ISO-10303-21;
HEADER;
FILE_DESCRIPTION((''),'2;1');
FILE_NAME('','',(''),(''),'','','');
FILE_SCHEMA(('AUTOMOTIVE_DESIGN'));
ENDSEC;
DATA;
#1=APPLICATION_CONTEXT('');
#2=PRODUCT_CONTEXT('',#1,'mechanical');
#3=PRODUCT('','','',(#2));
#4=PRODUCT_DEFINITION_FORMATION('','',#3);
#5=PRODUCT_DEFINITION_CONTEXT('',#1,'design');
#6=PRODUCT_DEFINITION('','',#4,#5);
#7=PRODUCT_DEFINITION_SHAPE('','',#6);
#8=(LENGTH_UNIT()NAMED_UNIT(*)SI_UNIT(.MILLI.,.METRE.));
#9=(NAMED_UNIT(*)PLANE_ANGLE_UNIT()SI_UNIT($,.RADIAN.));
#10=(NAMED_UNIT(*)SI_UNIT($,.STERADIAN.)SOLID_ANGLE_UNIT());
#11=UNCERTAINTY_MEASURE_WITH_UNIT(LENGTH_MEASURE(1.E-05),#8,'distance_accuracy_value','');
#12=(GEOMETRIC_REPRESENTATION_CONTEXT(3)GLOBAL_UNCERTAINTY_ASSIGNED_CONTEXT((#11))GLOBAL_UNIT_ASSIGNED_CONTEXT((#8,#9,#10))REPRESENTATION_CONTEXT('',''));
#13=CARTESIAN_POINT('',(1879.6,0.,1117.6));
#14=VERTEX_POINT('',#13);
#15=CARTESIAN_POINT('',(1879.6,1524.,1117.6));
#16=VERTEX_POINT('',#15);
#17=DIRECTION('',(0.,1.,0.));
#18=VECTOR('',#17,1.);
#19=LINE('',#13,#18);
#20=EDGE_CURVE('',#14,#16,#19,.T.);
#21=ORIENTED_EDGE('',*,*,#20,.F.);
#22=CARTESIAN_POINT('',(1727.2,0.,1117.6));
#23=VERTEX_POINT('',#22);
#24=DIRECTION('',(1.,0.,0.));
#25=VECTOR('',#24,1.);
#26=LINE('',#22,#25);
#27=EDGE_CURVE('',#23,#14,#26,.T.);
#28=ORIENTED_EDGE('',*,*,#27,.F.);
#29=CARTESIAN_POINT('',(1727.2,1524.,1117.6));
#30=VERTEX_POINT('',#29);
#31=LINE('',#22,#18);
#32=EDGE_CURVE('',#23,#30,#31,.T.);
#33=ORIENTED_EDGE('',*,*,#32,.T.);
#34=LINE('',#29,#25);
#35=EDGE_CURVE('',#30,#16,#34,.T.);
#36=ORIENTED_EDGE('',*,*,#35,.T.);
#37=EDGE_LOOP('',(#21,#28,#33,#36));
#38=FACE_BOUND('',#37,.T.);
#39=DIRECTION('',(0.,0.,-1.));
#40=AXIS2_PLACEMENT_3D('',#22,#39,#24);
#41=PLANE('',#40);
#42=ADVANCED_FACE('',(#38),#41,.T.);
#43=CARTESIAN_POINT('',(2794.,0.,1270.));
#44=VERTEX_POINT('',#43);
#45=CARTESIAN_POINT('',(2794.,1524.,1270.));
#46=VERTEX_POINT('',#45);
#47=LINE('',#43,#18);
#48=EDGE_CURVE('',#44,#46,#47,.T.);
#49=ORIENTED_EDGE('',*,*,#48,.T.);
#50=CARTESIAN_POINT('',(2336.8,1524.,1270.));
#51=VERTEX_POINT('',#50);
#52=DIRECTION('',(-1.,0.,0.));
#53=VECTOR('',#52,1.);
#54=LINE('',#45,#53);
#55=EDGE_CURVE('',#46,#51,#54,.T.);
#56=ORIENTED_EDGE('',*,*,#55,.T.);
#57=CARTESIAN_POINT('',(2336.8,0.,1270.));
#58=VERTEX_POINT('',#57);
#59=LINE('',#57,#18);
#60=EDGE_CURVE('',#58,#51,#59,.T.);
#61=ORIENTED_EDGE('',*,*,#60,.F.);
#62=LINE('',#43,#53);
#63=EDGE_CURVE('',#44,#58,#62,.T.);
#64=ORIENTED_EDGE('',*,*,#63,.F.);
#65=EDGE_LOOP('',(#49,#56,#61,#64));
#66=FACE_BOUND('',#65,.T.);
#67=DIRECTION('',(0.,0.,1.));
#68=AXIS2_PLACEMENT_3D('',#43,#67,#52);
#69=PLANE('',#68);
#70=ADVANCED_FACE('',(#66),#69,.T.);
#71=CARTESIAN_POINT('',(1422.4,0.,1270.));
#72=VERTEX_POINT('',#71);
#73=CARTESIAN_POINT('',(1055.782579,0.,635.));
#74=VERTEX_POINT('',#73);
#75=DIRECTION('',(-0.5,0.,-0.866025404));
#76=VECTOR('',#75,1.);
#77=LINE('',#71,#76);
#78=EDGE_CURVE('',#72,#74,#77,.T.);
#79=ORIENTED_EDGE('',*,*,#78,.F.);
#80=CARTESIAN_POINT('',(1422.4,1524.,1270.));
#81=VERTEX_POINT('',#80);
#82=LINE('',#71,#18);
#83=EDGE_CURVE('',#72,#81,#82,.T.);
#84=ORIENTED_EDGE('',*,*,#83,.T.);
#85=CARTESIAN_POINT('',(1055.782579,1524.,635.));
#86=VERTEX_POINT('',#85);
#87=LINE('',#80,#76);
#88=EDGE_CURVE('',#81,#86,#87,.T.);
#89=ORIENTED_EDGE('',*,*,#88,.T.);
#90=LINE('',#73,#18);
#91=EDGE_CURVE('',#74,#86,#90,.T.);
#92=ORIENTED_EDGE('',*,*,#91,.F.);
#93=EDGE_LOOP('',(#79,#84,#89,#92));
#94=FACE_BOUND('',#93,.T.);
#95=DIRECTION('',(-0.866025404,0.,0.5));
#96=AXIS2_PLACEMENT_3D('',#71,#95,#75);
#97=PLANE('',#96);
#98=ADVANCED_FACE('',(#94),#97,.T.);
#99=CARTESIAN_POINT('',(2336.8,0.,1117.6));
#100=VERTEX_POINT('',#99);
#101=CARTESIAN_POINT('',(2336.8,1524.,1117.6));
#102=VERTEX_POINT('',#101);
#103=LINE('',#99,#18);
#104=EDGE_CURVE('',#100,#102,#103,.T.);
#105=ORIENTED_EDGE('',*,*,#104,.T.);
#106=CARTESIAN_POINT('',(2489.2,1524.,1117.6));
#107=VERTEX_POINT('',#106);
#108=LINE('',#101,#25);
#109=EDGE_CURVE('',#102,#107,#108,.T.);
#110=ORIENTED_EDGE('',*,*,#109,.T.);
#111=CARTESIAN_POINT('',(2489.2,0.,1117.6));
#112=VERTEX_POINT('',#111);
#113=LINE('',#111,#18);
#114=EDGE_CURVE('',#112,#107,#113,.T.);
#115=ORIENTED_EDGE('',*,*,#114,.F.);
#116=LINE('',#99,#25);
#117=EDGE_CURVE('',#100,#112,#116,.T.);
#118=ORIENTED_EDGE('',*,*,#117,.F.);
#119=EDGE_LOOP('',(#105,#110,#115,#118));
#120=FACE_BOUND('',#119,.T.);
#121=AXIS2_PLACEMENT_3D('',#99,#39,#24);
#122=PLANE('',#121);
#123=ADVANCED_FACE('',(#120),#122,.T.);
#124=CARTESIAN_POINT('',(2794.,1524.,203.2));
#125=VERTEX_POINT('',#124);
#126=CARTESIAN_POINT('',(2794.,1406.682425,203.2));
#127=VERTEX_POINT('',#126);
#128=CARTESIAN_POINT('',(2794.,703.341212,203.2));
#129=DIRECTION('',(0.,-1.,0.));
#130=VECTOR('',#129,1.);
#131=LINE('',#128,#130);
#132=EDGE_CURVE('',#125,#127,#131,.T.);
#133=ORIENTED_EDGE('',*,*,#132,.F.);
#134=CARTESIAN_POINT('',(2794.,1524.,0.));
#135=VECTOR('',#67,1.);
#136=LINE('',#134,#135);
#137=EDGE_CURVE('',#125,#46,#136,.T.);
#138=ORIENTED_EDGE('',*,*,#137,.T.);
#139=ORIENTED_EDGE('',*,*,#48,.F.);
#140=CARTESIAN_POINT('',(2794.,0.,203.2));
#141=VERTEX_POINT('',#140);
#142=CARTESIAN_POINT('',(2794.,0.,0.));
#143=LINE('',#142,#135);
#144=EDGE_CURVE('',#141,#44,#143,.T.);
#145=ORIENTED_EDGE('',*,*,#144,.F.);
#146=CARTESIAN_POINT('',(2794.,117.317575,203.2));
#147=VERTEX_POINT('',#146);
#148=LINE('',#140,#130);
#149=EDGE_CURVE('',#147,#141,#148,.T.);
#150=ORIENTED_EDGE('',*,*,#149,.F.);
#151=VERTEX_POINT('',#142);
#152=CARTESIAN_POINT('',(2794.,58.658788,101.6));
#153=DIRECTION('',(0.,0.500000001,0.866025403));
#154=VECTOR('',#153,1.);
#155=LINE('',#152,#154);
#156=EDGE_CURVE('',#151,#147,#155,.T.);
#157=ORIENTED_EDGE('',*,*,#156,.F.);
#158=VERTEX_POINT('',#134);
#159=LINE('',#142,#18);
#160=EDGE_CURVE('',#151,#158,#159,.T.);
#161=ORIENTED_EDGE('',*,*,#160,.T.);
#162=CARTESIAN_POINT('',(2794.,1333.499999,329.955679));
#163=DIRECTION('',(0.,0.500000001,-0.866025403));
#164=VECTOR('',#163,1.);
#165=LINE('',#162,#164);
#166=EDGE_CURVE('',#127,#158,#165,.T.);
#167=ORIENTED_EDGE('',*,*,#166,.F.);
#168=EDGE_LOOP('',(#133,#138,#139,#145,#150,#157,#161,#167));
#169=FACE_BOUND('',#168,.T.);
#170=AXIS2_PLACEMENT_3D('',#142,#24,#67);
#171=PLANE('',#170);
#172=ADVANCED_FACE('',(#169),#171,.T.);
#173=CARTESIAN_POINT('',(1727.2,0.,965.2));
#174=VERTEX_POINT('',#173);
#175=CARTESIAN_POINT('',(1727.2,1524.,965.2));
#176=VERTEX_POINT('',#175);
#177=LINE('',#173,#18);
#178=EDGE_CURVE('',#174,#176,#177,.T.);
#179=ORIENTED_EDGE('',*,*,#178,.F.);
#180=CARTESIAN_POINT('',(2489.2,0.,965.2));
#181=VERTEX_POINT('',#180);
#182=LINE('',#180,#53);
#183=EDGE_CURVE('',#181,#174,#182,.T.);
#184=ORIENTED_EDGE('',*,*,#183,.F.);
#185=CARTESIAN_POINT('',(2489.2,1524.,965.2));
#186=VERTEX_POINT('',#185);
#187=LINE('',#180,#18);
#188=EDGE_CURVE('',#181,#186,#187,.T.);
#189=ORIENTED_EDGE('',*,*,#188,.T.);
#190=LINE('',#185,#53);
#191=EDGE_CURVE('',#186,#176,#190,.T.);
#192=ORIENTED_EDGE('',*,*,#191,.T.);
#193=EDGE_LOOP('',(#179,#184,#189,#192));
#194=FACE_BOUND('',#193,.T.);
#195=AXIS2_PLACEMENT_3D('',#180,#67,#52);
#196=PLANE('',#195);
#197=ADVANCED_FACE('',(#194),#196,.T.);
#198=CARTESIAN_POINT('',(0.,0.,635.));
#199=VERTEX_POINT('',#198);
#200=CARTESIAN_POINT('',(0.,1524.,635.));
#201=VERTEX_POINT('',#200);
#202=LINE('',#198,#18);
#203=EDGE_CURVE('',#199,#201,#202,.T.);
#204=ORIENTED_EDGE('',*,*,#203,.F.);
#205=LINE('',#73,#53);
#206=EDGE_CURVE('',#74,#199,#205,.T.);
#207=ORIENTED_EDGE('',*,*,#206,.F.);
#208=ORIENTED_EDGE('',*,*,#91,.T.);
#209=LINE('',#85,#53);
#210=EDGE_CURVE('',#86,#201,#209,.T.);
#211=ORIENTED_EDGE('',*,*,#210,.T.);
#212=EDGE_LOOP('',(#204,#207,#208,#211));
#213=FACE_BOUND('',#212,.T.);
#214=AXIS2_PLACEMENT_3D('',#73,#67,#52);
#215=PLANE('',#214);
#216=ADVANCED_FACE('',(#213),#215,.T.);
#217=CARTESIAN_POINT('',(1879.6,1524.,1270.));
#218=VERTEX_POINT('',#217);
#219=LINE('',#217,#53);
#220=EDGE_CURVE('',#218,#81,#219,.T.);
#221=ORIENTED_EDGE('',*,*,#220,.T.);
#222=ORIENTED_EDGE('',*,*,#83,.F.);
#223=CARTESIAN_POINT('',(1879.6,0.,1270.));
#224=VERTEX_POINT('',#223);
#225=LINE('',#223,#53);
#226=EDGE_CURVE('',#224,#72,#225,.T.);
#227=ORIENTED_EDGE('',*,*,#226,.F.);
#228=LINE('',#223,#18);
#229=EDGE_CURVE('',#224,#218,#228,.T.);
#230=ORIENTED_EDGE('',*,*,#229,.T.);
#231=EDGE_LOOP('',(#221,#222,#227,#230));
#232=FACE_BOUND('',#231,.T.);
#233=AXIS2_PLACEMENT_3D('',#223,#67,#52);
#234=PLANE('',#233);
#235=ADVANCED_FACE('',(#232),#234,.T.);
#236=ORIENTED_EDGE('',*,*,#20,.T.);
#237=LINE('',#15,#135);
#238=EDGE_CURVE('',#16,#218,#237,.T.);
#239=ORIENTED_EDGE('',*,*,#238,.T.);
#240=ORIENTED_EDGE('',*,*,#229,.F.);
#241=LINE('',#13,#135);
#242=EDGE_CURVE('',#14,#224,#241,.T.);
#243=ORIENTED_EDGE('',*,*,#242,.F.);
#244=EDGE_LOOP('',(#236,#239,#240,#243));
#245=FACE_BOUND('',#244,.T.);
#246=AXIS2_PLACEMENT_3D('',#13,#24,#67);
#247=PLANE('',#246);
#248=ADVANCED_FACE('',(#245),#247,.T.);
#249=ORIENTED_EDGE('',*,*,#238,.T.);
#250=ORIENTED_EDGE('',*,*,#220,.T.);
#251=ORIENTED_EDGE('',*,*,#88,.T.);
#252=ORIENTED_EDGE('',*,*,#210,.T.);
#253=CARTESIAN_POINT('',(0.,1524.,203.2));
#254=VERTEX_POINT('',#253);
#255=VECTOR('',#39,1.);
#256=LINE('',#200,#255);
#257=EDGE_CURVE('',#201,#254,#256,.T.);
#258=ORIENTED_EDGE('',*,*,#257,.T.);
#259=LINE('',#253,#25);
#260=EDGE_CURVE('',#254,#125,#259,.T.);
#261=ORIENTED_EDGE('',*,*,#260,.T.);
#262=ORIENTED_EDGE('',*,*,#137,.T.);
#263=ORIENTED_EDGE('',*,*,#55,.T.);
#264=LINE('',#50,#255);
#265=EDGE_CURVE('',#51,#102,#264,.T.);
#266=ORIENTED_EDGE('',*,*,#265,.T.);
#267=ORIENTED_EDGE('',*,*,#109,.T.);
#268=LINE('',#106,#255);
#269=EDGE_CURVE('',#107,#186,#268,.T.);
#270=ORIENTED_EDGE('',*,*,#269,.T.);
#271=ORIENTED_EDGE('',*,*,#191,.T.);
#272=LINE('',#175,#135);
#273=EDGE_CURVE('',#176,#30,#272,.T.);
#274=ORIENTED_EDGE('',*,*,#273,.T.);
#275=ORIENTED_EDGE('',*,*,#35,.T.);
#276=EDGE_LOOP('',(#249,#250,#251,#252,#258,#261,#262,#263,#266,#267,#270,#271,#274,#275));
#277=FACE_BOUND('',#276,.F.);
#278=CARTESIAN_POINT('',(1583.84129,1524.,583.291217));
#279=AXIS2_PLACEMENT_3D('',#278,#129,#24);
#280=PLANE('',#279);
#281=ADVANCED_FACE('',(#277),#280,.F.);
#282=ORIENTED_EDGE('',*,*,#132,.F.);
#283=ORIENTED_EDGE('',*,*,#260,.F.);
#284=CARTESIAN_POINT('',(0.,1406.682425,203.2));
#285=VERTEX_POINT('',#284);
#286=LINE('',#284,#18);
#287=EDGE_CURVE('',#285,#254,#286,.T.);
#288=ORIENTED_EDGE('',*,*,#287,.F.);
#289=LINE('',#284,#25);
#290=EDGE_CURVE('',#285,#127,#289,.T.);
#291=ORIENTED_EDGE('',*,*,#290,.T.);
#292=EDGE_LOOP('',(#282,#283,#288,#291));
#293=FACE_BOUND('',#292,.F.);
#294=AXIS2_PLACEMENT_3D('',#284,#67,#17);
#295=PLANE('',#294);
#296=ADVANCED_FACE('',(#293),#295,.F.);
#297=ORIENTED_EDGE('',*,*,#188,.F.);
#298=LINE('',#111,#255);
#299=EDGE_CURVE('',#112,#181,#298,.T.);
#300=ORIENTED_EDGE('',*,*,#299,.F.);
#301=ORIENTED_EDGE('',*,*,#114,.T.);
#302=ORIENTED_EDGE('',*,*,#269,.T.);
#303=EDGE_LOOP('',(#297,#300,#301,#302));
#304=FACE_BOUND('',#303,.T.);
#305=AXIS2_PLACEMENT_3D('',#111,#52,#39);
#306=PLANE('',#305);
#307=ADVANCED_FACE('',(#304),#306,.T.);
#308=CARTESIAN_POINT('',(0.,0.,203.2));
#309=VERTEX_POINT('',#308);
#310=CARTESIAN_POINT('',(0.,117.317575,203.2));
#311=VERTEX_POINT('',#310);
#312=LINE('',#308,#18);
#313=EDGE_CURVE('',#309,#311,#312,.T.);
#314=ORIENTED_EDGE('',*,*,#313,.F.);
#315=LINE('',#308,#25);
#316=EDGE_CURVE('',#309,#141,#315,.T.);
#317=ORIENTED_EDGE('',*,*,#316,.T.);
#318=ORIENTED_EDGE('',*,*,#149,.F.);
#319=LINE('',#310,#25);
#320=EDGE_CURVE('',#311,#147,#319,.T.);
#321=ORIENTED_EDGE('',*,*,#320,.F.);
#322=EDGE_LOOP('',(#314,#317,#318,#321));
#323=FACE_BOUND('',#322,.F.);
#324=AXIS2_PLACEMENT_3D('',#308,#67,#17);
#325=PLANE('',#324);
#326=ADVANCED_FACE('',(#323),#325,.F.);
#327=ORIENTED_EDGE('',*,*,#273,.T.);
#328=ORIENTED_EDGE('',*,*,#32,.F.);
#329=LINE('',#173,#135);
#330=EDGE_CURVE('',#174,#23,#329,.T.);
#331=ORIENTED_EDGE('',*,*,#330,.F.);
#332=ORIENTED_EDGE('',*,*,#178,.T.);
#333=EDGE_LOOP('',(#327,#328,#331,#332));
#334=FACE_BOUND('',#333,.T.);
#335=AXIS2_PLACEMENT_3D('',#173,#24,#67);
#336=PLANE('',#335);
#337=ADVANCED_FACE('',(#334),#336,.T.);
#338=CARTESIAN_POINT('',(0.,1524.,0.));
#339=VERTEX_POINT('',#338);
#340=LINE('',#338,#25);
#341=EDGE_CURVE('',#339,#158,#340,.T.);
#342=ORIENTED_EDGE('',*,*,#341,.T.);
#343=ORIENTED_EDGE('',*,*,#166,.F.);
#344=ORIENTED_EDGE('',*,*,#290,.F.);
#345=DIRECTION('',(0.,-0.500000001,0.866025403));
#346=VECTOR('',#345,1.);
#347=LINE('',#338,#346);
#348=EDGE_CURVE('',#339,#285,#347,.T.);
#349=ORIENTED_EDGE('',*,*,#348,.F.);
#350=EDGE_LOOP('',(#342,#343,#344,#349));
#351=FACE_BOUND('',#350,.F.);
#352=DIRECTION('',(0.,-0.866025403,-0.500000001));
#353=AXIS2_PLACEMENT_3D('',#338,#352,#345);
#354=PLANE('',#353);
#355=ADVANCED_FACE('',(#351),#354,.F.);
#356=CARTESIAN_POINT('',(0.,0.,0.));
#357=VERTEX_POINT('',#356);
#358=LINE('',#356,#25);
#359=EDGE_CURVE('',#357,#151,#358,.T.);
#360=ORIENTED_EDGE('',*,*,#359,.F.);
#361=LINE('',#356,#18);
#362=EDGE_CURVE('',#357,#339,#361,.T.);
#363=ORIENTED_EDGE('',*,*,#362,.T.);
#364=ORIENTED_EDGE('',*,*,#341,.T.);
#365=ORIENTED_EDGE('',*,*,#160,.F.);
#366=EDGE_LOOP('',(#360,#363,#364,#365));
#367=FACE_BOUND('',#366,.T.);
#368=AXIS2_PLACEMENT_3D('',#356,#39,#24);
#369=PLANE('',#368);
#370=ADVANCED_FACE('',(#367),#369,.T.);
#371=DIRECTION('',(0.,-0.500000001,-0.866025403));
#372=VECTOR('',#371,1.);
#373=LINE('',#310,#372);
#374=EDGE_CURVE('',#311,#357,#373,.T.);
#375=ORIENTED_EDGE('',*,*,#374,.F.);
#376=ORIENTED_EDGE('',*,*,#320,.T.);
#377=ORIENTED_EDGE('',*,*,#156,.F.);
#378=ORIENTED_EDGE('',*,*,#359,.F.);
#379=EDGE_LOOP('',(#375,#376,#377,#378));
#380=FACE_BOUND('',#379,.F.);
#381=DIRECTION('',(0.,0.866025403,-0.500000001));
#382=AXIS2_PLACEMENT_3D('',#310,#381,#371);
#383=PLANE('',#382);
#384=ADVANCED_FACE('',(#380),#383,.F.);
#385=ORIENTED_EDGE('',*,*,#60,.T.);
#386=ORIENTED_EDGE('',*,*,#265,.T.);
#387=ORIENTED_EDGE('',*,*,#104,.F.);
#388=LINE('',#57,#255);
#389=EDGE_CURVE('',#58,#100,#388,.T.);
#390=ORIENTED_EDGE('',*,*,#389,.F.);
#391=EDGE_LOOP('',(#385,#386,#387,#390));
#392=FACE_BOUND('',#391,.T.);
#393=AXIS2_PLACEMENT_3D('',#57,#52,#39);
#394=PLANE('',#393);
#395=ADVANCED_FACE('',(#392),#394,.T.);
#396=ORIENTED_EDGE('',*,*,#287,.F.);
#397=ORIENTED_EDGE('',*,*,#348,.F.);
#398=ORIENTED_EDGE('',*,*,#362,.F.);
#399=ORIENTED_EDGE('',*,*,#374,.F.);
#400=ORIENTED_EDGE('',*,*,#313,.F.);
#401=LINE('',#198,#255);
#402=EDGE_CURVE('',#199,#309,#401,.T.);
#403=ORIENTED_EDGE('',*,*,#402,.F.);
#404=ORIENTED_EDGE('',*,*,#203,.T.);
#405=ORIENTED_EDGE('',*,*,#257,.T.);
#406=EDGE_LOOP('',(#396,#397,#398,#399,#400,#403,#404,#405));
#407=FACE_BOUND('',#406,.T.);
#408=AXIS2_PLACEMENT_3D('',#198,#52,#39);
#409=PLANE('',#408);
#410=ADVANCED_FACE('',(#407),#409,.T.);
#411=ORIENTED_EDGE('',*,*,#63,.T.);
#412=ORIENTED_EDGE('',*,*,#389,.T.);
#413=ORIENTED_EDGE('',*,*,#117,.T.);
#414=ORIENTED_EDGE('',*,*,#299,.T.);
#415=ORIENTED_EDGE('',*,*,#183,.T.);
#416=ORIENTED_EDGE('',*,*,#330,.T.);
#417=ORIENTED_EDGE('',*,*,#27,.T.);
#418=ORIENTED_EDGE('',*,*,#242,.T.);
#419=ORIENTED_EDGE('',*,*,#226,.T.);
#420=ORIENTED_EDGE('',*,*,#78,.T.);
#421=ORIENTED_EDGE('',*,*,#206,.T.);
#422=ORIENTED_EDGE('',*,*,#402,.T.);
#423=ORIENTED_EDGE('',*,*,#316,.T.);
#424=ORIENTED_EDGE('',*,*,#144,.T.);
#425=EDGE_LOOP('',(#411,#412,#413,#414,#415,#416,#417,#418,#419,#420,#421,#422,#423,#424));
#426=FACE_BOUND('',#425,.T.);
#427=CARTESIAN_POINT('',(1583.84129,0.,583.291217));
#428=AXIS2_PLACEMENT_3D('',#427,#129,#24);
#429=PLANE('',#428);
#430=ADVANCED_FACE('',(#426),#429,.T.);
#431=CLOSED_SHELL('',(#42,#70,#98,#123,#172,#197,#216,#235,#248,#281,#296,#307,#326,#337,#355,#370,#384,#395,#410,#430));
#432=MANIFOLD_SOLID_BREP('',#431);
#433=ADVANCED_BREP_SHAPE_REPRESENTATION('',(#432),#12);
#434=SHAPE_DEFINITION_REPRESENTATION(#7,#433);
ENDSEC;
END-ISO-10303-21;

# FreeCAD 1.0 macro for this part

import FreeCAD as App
import Part
import Sketcher
Q = App.Units.Quantity


def add_polygon(sketch, points):
    """Adds a closed chain of lines whose ends are joined by coincident constraints."""
    first, n = sketch.GeometryCount, len(points)
    for a, b in zip(points, points[1:] + points[:1]):
        sketch.addGeometry(Part.LineSegment(App.Vector(*a, 0), App.Vector(*b, 0)), False)
    for i in range(n):
        sketch.addConstraint(Sketcher.Constraint("Coincident", first + i, 2, first + (i + 1) % n, 1))

doc = App.newDocument("Part")
params = doc.addObject("Spreadsheet::Sheet", "Params")
for row, (alias, value) in enumerate([
    ("sketch1_width", "110 in"),
    ("sketch1_width2", "18 in"),
    ("sketch1_width3", "6 in"),
    ("sketch1_width4", "30 in"),
    ("sketch1_height", "25 in"),
    ("pad1_length", "60 in"),
    ("sketch2_height", "8 in"),
    ("sketch3_height", "8 in"),
], start=1):
    params.set(f"A{row}", alias)
    params.set(f"B{row}", "=" + value)
    params.setAlias(f"B{row}", alias)

body = doc.addObject("PartDesign::Body", "Body")

# Sketch on XZ plane
sketch1 = doc.addObject("Sketcher::SketchObject", "Sketch")
body.addObject(sketch1)
sketch1.AttachmentSupport = (doc.XZ_Plane, [""])
sketch1.MapMode = "FlatFace"
add_polygon(sketch1, [(0, 635), (0, 0), (2794, 0), (2794, 1270), (2337, 1270), (2337, 1118), (2489, 1118), (2489, 965), (1727, 965), (1727, 1118), (1880, 1118), (1880, 1270), (1422, 1270), (1056, 635)])  # lines 0-13
sketch1.addConstraint([
    Sketcher.Constraint("Vertical", 0),
    Sketcher.Constraint("Horizontal", 1),
    Sketcher.Constraint("Vertical", 2),
    Sketcher.Constraint("Horizontal", 3),
    Sketcher.Constraint("Vertical", 4),
    Sketcher.Constraint("Horizontal", 5),
    Sketcher.Constraint("Vertical", 6),
    Sketcher.Constraint("Horizontal", 7),
    Sketcher.Constraint("Vertical", 8),
    Sketcher.Constraint("Horizontal", 9),
    Sketcher.Constraint("Vertical", 10),
    Sketcher.Constraint("Horizontal", 11),
    Sketcher.Constraint("Horizontal", 13),
    Sketcher.Constraint("Coincident", 0, 2, -1, 1),
    Sketcher.Constraint("Horizontal", 5, 2, 8, 2),
    Sketcher.Constraint("Horizontal", 3, 2, 10, 2),
    Sketcher.Constraint("Equal", 5, 9),
    Sketcher.Constraint("Equal", 3, 11),
    Sketcher.Constraint("Equal", 9, 4),
    Sketcher.Constraint("Equal", 4, 6),
    Sketcher.Constraint("DistanceX", 1, 1, 1, 2, Q("110 in")),
    Sketcher.Constraint("DistanceX", 3, 2, 3, 1, Q("18 in")),
    Sketcher.Constraint("DistanceX", 5, 1, 5, 2, Q("6 in")),
    Sketcher.Constraint("DistanceX", 7, 2, 7, 1, Q("30 in")),
    Sketcher.Constraint("DistanceY", 0, 2, 0, 1, Q("25 in")),
    Sketcher.Constraint("DistanceY", 2, 1, 2, 2, Q("50 in")),
    Sketcher.Constraint("Angle", 12, Q("-120 deg")),
])
sketch1.setExpression("Constraints[34]", "Params.sketch1_width")
sketch1.setExpression("Constraints[35]", "Params.sketch1_width2")
sketch1.setExpression("Constraints[36]", "Params.sketch1_width3")
sketch1.setExpression("Constraints[37]", "Params.sketch1_width4")
sketch1.setExpression("Constraints[38]", "Params.sketch1_height")
pad1 = doc.addObject("PartDesign::Pad", "Pad")
body.addObject(pad1)
pad1.Profile = sketch1
pad1.setExpression("Length", "Params.pad1_length")
pad1.Reversed = True

# Sketch on YZ plane
sketch2 = doc.addObject("Sketcher::SketchObject", "Sketch001")
body.addObject(sketch2)
sketch2.AttachmentSupport = (doc.YZ_Plane, [""])
sketch2.MapMode = "FlatFace"
add_polygon(sketch2, [(117, 203), (0, 0), (0, 203)])  # lines 0-2
sketch2.addConstraint([
    Sketcher.Constraint("Vertical", 1),
    Sketcher.Constraint("Horizontal", 2),
    Sketcher.Constraint("Coincident", 0, 2, -1, 1),
    Sketcher.Constraint("DistanceY", 1, 1, 1, 2, Q("8 in")),
    Sketcher.Constraint("Angle", 0, Q("-120 deg")),
])
sketch2.setExpression("Constraints[6]", "Params.sketch2_height")
pocket1 = doc.addObject("PartDesign::Pocket", "Pocket")
body.addObject(pocket1)
pocket1.Profile = sketch2
pocket1.Type = "ThroughAll"
pocket1.Reversed = True

# Sketch on YZ plane
sketch3 = doc.addObject("Sketcher::SketchObject", "Sketch002")
body.addObject(sketch3)
sketch3.AttachmentSupport = (doc.YZ_Plane, [""])
sketch3.MapMode = "FlatFace"
add_polygon(sketch3, [(1524, 203), (1524, 0), (1407, 203)])  # lines 0-2
sketch3.addConstraint([
    Sketcher.Constraint("Vertical", 0),
    Sketcher.Constraint("Horizontal", 2),
    Sketcher.Constraint("PointOnObject", 0, 2, -1),
    Sketcher.Constraint("DistanceY", 0, 2, 0, 1, Q("8 in")),
    Sketcher.Constraint("DistanceX", -1, 1, 0, 2, Q("60 in")),
    Sketcher.Constraint("Angle", 1, Q("120 deg")),
])
sketch3.setExpression("Constraints[6]", "Params.sketch3_height")
pocket2 = doc.addObject("PartDesign::Pocket", "Pocket001")
body.addObject(pocket2)
pocket2.Profile = sketch3
pocket2.Type = "ThroughAll"
pocket2.Reversed = True

doc.recompute()
